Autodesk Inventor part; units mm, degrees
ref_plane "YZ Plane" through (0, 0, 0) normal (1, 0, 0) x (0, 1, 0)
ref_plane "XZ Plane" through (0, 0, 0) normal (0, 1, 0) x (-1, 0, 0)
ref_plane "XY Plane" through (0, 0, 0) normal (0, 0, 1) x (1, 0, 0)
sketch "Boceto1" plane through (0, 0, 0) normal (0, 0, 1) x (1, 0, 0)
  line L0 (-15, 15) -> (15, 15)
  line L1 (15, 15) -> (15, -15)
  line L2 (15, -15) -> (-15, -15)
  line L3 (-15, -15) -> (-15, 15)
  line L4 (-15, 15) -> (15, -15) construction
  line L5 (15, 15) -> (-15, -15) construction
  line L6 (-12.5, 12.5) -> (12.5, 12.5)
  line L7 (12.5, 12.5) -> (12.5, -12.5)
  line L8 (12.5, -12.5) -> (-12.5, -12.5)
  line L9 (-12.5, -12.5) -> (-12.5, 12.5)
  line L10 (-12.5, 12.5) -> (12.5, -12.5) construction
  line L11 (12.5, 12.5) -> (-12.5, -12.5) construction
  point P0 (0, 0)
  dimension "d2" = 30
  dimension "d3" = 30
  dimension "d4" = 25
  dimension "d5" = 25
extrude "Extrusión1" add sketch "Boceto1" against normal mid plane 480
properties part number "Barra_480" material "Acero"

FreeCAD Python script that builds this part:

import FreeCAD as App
import Part
import Sketcher

V = App.Vector

doc = App.newDocument("Part")
body = doc.addObject("PartDesign::Body", "Body")

# Sketch on XY plane
sketch1 = body.newObject("Sketcher::SketchObject", "Sketch")
sketch1.AttachmentSupport = (doc.getObject("XY_Plane"), [""])
sketch1.MapMode = "FlatFace"
sketch1.addGeometry([
    Part.LineSegment(V(15, 15, 0), V(-15, 15, 0)),  # 0
    Part.LineSegment(V(-15, 15, 0), V(-15, -15, 0)),  # 1
    Part.LineSegment(V(-15, -15, 0), V(15, -15, 0)),  # 2
    Part.LineSegment(V(15, -15, 0), V(15, 15, 0)),  # 3
    Part.LineSegment(V(-12, -12, 0), V(-12, 12, 0)),  # 4
    Part.LineSegment(V(-12, 12, 0), V(12, 12, 0)),  # 5
    Part.LineSegment(V(12, 12, 0), V(12, -12, 0)),  # 6
    Part.LineSegment(V(12, -12, 0), V(-12, -12, 0)),  # 7
], False)
sketch1.addConstraint([
    Sketcher.Constraint("Coincident", 0, 2, 1, 1),
    Sketcher.Constraint("Coincident", 1, 2, 2, 1),
    Sketcher.Constraint("Coincident", 2, 2, 3, 1),
    Sketcher.Constraint("Coincident", 3, 2, 0, 1),
    Sketcher.Constraint("Coincident", 4, 2, 5, 1),
    Sketcher.Constraint("Coincident", 5, 2, 6, 1),
    Sketcher.Constraint("Coincident", 6, 2, 7, 1),
    Sketcher.Constraint("Coincident", 7, 2, 4, 1),
    Sketcher.Constraint("Horizontal", 0),
    Sketcher.Constraint("Vertical", 1),
    Sketcher.Constraint("Horizontal", 2),
    Sketcher.Constraint("Vertical", 3),
    Sketcher.Constraint("Vertical", 4),
    Sketcher.Constraint("Horizontal", 5),
    Sketcher.Constraint("Vertical", 6),
    Sketcher.Constraint("Horizontal", 7),
    Sketcher.Constraint("Symmetric", 0, 2, 2, 2, -1, 1),
    Sketcher.Constraint("Symmetric", 4, 2, 6, 2, -1, 1),
    Sketcher.Constraint("Equal", 2, 1),
    Sketcher.Constraint("Equal", 7, 4),
    Sketcher.Constraint("DistanceX", 0, 2, 0, 1, 30.0),
    Sketcher.Constraint("DistanceX", 5, 1, 5, 2, 25.0),
])
pad1 = body.newObject("PartDesign::Pad", "Pad")
pad1.Profile = sketch1
pad1.Length = 480
pad1.Midplane = True

doc.recompute()
